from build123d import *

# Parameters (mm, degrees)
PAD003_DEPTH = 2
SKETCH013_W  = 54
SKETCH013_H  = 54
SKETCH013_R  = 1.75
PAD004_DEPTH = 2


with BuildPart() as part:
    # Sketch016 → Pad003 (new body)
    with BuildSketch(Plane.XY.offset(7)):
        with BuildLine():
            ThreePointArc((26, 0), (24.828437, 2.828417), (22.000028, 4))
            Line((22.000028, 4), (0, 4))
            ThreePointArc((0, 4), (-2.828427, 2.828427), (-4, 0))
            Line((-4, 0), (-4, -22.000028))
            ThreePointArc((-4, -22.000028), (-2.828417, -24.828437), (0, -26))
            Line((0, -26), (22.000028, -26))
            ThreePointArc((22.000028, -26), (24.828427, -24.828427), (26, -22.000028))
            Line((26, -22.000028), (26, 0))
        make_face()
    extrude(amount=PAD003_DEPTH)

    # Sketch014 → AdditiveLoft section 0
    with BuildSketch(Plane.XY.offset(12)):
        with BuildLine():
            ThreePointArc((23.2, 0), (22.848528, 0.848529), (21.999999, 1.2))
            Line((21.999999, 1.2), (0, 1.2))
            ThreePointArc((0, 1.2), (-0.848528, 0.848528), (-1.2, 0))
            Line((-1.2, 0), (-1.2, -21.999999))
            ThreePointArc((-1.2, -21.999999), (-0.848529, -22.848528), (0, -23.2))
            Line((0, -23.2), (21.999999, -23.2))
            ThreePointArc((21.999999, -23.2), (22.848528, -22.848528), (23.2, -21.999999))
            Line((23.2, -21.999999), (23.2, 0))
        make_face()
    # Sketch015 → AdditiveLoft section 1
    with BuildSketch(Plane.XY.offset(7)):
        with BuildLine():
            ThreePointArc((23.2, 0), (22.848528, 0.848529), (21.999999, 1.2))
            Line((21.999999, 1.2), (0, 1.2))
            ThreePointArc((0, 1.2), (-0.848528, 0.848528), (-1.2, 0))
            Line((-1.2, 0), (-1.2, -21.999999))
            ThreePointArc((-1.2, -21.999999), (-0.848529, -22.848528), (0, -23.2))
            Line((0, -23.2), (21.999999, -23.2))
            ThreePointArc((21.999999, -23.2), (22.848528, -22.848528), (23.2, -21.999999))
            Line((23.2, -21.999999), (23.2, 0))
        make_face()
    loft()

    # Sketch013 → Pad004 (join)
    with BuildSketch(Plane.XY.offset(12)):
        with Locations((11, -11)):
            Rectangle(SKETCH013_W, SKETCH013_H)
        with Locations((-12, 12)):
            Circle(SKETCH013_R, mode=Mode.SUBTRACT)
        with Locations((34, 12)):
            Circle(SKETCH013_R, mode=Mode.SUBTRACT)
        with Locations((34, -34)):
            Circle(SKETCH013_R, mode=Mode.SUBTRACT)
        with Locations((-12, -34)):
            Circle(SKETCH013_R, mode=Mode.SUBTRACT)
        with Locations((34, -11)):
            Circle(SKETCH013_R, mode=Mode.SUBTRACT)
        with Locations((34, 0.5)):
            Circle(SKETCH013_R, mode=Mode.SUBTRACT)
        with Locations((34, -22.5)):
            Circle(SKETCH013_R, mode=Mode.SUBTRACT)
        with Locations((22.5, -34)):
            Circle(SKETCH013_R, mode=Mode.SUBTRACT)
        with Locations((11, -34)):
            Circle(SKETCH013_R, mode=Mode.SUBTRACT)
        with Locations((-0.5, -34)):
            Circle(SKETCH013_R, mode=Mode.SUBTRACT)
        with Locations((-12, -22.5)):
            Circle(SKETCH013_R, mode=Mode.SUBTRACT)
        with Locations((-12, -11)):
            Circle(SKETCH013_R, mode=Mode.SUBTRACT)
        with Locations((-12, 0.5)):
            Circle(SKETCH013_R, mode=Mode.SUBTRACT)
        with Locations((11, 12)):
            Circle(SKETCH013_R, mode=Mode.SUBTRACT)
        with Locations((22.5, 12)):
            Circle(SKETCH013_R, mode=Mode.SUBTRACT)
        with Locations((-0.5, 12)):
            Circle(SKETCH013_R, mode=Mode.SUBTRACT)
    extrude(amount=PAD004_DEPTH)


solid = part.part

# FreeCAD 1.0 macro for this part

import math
import FreeCAD as App
import Part
import Sketcher

doc = App.newDocument("Part")
body = doc.addObject("PartDesign::Body", "Body")

# Sketch on XY plane
sketch1 = body.newObject("Sketcher::SketchObject", "Sketch")
sketch1.AttachmentSupport = (doc.getObject("XY_Plane"), [""])
sketch1.MapMode = "FlatFace"
sketch1.AttachmentOffset = App.Placement(App.Vector(0, 0, 7), App.Rotation())
sketch1.addGeometry(Part.ArcOfCircle(Part.Circle(App.Vector(22, 0, 0), App.Vector(0, 0, 1), 4), math.radians(0.000006), math.radians(89.999593)), False)
sketch1.addGeometry(Part.LineSegment(App.Vector(22.000028, 4, 0), App.Vector(0, 4, 0)), False)
sketch1.addGeometry(Part.ArcOfCircle(Part.Circle(App.Vector(0, 0, 0), App.Vector(0, 0, 1), 4), math.radians(90.000006), math.radians(179.999994)), False)
sketch1.addGeometry(Part.LineSegment(App.Vector(-4, 0, 0), App.Vector(-4, -22.000028, 0)), False)
sketch1.addGeometry(Part.ArcOfCircle(Part.Circle(App.Vector(0, -22, 0), App.Vector(0, 0, 1), 4), math.radians(-179.999593), math.radians(-90.000006)), False)
sketch1.addGeometry(Part.LineSegment(App.Vector(0, -26, 0), App.Vector(22.000028, -26, 0)), False)
sketch1.addGeometry(Part.ArcOfCircle(Part.Circle(App.Vector(22, -22, 0), App.Vector(0, 0, 1), 4), math.radians(-89.999593), math.radians(-0.000407)), False)
sketch1.addGeometry(Part.LineSegment(App.Vector(26, -22.000028, 0), App.Vector(26, 0, 0)), False)
sketch1.addConstraint(Sketcher.Constraint("Coincident", 0, 2, 1, 1))
sketch1.addConstraint(Sketcher.Constraint("Tangent", 1, 2, 2, 1))
sketch1.addConstraint(Sketcher.Constraint("Tangent", 2, 2, 3, 1))
sketch1.addConstraint(Sketcher.Constraint("Coincident", 3, 2, 4, 1))
sketch1.addConstraint(Sketcher.Constraint("Tangent", 4, 2, 5, 1))
sketch1.addConstraint(Sketcher.Constraint("Coincident", 5, 2, 6, 1))
sketch1.addConstraint(Sketcher.Constraint("Coincident", 6, 2, 7, 1))
sketch1.addConstraint(Sketcher.Constraint("Tangent", 7, 2, 0, 1))
sketch1.addConstraint(Sketcher.Constraint("Horizontal", 1))
sketch1.addConstraint(Sketcher.Constraint("Vertical", 3))
sketch1.addConstraint(Sketcher.Constraint("Horizontal", 5))
sketch1.addConstraint(Sketcher.Constraint("Vertical", 7))
sketch1.addConstraint(Sketcher.Constraint("Coincident", 2, 3, -1, 1))
sketch1.addConstraint(Sketcher.Constraint("Equal", 0, 2))
sketch1.addConstraint(Sketcher.Constraint("Equal", 2, 4))
sketch1.addConstraint(Sketcher.Constraint("Equal", 4, 6))
sketch1.addConstraint(Sketcher.Constraint("Horizontal", 3, 2, 6, 2))
sketch1.addConstraint(Sketcher.Constraint("Vertical", 0, 2, 5, 2))
sketch1.addConstraint(Sketcher.Constraint("Equal", 5, 3))
sketch1.addConstraint(Sketcher.Constraint("Radius", 0, 4.0))
sketch1.addConstraint(Sketcher.Constraint("DistanceX", -1, 1, 0, 3, 22.0))
sketch1.addConstraint(Sketcher.Constraint("DistanceY", 4, 3, -1, 1, 22.0))
sketch1.addConstraint(Sketcher.Constraint("DistanceX", 1, 2, 1, 1, 22.000028))
pad1 = body.newObject("PartDesign::Pad", "Pad")
pad1.Profile = sketch1
pad1.Length = 2

# Sketch on XY plane
sketch2 = body.newObject("Sketcher::SketchObject", "Sketch001")
sketch2.AttachmentSupport = (doc.getObject("XY_Plane"), [""])
sketch2.MapMode = "FlatFace"
sketch2.AttachmentOffset = App.Placement(App.Vector(0, 0, 12), App.Rotation())
sketch2.addGeometry(Part.ArcOfCircle(Part.Circle(App.Vector(22.000001, 0.000001, 0), App.Vector(0, 0, 1), 1.199999), math.radians(-0.000059), math.radians(90.000107)), False)
sketch2.addGeometry(Part.LineSegment(App.Vector(21.999999, 1.2, 0), App.Vector(0, 1.2, 0)), False)
sketch2.addGeometry(Part.ArcOfCircle(Part.Circle(App.Vector(0, 0, 0), App.Vector(0, 0, 1), 1.2), math.radians(90.000022), math.radians(179.999978)), False)
sketch2.addGeometry(Part.LineSegment(App.Vector(-1.2, 0, 0), App.Vector(-1.2, -21.999999, 0)), False)
sketch2.addGeometry(Part.ArcOfCircle(Part.Circle(App.Vector(-0.000001, -22.000001, 0), App.Vector(0, 0, 1), 1.199999), math.radians(179.999893), math.radians(270.000059)), False)
sketch2.addGeometry(Part.LineSegment(App.Vector(0, -23.2, 0), App.Vector(21.999999, -23.2, 0)), False)
sketch2.addGeometry(Part.ArcOfCircle(Part.Circle(App.Vector(22, -22, 0), App.Vector(0, 0, 1), 1.2), math.radians(-90.000025), math.radians(0.000025)), False)
sketch2.addGeometry(Part.LineSegment(App.Vector(23.2, -21.999999, 0), App.Vector(23.2, 0, 0)), False)
sketch2.addConstraint(Sketcher.Constraint("Tangent", 0, 2, 1, 1))
sketch2.addConstraint(Sketcher.Constraint("Tangent", 1, 2, 2, 1))
sketch2.addConstraint(Sketcher.Constraint("Tangent", 2, 2, 3, 1))
sketch2.addConstraint(Sketcher.Constraint("Tangent", 3, 2, 4, 1))
sketch2.addConstraint(Sketcher.Constraint("Tangent", 4, 2, 5, 1))
sketch2.addConstraint(Sketcher.Constraint("Tangent", 5, 2, 6, 1))
sketch2.addConstraint(Sketcher.Constraint("Tangent", 6, 2, 7, 1))
sketch2.addConstraint(Sketcher.Constraint("Tangent", 7, 2, 0, 1))
sketch2.addConstraint(Sketcher.Constraint("Horizontal", 1))
sketch2.addConstraint(Sketcher.Constraint("Vertical", 3))
sketch2.addConstraint(Sketcher.Constraint("Horizontal", 5))
sketch2.addConstraint(Sketcher.Constraint("Vertical", 7))
sketch2.addConstraint(Sketcher.Constraint("Coincident", 2, 3, -1, 1))
sketch2.addConstraint(Sketcher.Constraint("Equal", 0, 2))
sketch2.addConstraint(Sketcher.Constraint("Equal", 2, 4))
sketch2.addConstraint(Sketcher.Constraint("Equal", 4, 6))
sketch2.addConstraint(Sketcher.Constraint("Equal", 5, 3))
sketch2.addConstraint(Sketcher.Constraint("Radius", 0, 1.199999))
sketch2.addConstraint(Sketcher.Constraint("DistanceX", 1, 2, 1, 1, 21.999999))

# Sketch on XY plane
sketch3 = body.newObject("Sketcher::SketchObject", "Sketch002")
sketch3.AttachmentSupport = (doc.getObject("XY_Plane"), [""])
sketch3.MapMode = "FlatFace"
sketch3.AttachmentOffset = App.Placement(App.Vector(0, 0, 7), App.Rotation())
sketch3.addGeometry(Part.ArcOfCircle(Part.Circle(App.Vector(22.000001, 0.000001, 0), App.Vector(0, 0, 1), 1.199999), math.radians(-0.000059), math.radians(90.000107)), False)
sketch3.addGeometry(Part.LineSegment(App.Vector(21.999999, 1.2, 0), App.Vector(0, 1.2, 0)), False)
sketch3.addGeometry(Part.ArcOfCircle(Part.Circle(App.Vector(0, 0, 0), App.Vector(0, 0, 1), 1.2), math.radians(90.000022), math.radians(179.999978)), False)
sketch3.addGeometry(Part.LineSegment(App.Vector(-1.2, 0, 0), App.Vector(-1.2, -21.999999, 0)), False)
sketch3.addGeometry(Part.ArcOfCircle(Part.Circle(App.Vector(-0.000001, -22.000001, 0), App.Vector(0, 0, 1), 1.199999), math.radians(179.999893), math.radians(270.000059)), False)
sketch3.addGeometry(Part.LineSegment(App.Vector(0, -23.2, 0), App.Vector(21.999999, -23.2, 0)), False)
sketch3.addGeometry(Part.ArcOfCircle(Part.Circle(App.Vector(22, -22, 0), App.Vector(0, 0, 1), 1.2), math.radians(-90.000025), math.radians(0.000025)), False)
sketch3.addGeometry(Part.LineSegment(App.Vector(23.2, -21.999999, 0), App.Vector(23.2, 0, 0)), False)
sketch3.addConstraint(Sketcher.Constraint("Tangent", 0, 2, 1, 1))
sketch3.addConstraint(Sketcher.Constraint("Tangent", 1, 2, 2, 1))
sketch3.addConstraint(Sketcher.Constraint("Tangent", 2, 2, 3, 1))
sketch3.addConstraint(Sketcher.Constraint("Tangent", 3, 2, 4, 1))
sketch3.addConstraint(Sketcher.Constraint("Tangent", 4, 2, 5, 1))
sketch3.addConstraint(Sketcher.Constraint("Tangent", 5, 2, 6, 1))
sketch3.addConstraint(Sketcher.Constraint("Tangent", 6, 2, 7, 1))
sketch3.addConstraint(Sketcher.Constraint("Tangent", 7, 2, 0, 1))
sketch3.addConstraint(Sketcher.Constraint("Horizontal", 1))
sketch3.addConstraint(Sketcher.Constraint("Vertical", 3))
sketch3.addConstraint(Sketcher.Constraint("Horizontal", 5))
sketch3.addConstraint(Sketcher.Constraint("Vertical", 7))
sketch3.addConstraint(Sketcher.Constraint("Coincident", 2, 3, -1, 1))
sketch3.addConstraint(Sketcher.Constraint("Equal", 0, 2))
sketch3.addConstraint(Sketcher.Constraint("Equal", 2, 4))
sketch3.addConstraint(Sketcher.Constraint("Equal", 4, 6))
sketch3.addConstraint(Sketcher.Constraint("Equal", 5, 3))
sketch3.addConstraint(Sketcher.Constraint("Radius", 0, 1.199999))
sketch3.addConstraint(Sketcher.Constraint("DistanceX", 1, 2, 1, 1, 21.999999))

additiveloft = body.newObject("PartDesign::AdditiveLoft", "AdditiveLoft")
additiveloft.Profile = sketch2
additiveloft.Sections = [sketch3]

# Sketch on XY plane
sketch4 = body.newObject("Sketcher::SketchObject", "Sketch003")
sketch4.AttachmentSupport = (doc.getObject("XY_Plane"), [""])
sketch4.MapMode = "FlatFace"
sketch4.AttachmentOffset = App.Placement(App.Vector(0, 0, 12), App.Rotation())
sketch4.addGeometry(Part.LineSegment(App.Vector(-16, 16, 0), App.Vector(-16, -38, 0)), False)
sketch4.addGeometry(Part.LineSegment(App.Vector(-16, -38, 0), App.Vector(38, -38, 0)), False)
sketch4.addGeometry(Part.LineSegment(App.Vector(38, -38, 0), App.Vector(38, 16, 0)), False)
sketch4.addGeometry(Part.LineSegment(App.Vector(38, 16, 0), App.Vector(-16, 16, 0)), False)
sketch4.addGeometry(Part.Circle(App.Vector(-12, -34, 0), App.Vector(0, 0, 1), 1.75), False)
sketch4.addGeometry(Part.Circle(App.Vector(-0.5, -34, 0), App.Vector(0, 0, 1), 1.75), False)
sketch4.addGeometry(Part.Circle(App.Vector(-12, -22.5, 0), App.Vector(0, 0, 1), 1.75), False)
sketch4.addGeometry(Part.Circle(App.Vector(11, -34, 0), App.Vector(0, 0, 1), 1.75), False)
sketch4.addGeometry(Part.Circle(App.Vector(22.5, -34, 0), App.Vector(0, 0, 1), 1.75), False)
sketch4.addGeometry(Part.Circle(App.Vector(34, -34, 0), App.Vector(0, 0, 1), 1.75), False)
sketch4.addGeometry(Part.Circle(App.Vector(34, -22.5, 0), App.Vector(0, 0, 1), 1.75), False)
sketch4.addGeometry(Part.Circle(App.Vector(-12, -11, 0), App.Vector(0, 0, 1), 1.75), False)
sketch4.addGeometry(Part.Circle(App.Vector(-12, 0.5, 0), App.Vector(0, 0, 1), 1.75), False)
sketch4.addGeometry(Part.Circle(App.Vector(-12, 12, 0), App.Vector(0, 0, 1), 1.75), False)
sketch4.addGeometry(Part.Circle(App.Vector(-0.5, 12, 0), App.Vector(0, 0, 1), 1.75), False)
sketch4.addGeometry(Part.Circle(App.Vector(34, -11, 0), App.Vector(0, 0, 1), 1.75), False)
sketch4.addGeometry(Part.Circle(App.Vector(34, 0.5, 0), App.Vector(0, 0, 1), 1.75), False)
sketch4.addGeometry(Part.Circle(App.Vector(11, 12, 0), App.Vector(0, 0, 1), 1.75), False)
sketch4.addGeometry(Part.Circle(App.Vector(22.5, 12, 0), App.Vector(0, 0, 1), 1.75), False)
sketch4.addGeometry(Part.Circle(App.Vector(34, 12, 0), App.Vector(0, 0, 1), 1.75), False)
sketch4.addConstraint(Sketcher.Constraint("Coincident", 0, 2, 1, 1))
sketch4.addConstraint(Sketcher.Constraint("Coincident", 1, 2, 2, 1))
sketch4.addConstraint(Sketcher.Constraint("Coincident", 2, 2, 3, 1))
sketch4.addConstraint(Sketcher.Constraint("Coincident", 3, 2, 0, 1))
sketch4.addConstraint(Sketcher.Constraint("Vertical", 0))
sketch4.addConstraint(Sketcher.Constraint("Horizontal", 1))
sketch4.addConstraint(Sketcher.Constraint("Vertical", 2))
sketch4.addConstraint(Sketcher.Constraint("Horizontal", 3))
sketch4.addConstraint(Sketcher.Constraint("Equal", 4, 5))
sketch4.addConstraint(Sketcher.Constraint("Equal", 5, 6))
sketch4.addConstraint(Sketcher.Constraint("Equal", 6, 7))
sketch4.addConstraint(Sketcher.Constraint("Equal", 7, 8))
sketch4.addConstraint(Sketcher.Constraint("Equal", 8, 9))
sketch4.addConstraint(Sketcher.Constraint("Equal", 9, 10))
sketch4.addConstraint(Sketcher.Constraint("Equal", 10, 11))
sketch4.addConstraint(Sketcher.Constraint("Equal", 11, 12))
sketch4.addConstraint(Sketcher.Constraint("Equal", 12, 13))
sketch4.addConstraint(Sketcher.Constraint("Equal", 13, 14))
sketch4.addConstraint(Sketcher.Constraint("Equal", 14, 15))
sketch4.addConstraint(Sketcher.Constraint("Equal", 15, 16))
sketch4.addConstraint(Sketcher.Constraint("Equal", 16, 17))
sketch4.addConstraint(Sketcher.Constraint("Equal", 17, 18))
sketch4.addConstraint(Sketcher.Constraint("Equal", 18, 19))
sketch4.addConstraint(Sketcher.Constraint("Horizontal", 4, 3, 5, 3))
sketch4.addConstraint(Sketcher.Constraint("Horizontal", 5, 3, 7, 3))
sketch4.addConstraint(Sketcher.Constraint("Horizontal", 7, 3, 8, 3))
sketch4.addConstraint(Sketcher.Constraint("Horizontal", 8, 3, 9, 3))
sketch4.addConstraint(Sketcher.Constraint("Horizontal", 6, 3, 10, 3))
sketch4.addConstraint(Sketcher.Constraint("Horizontal", 13, 3, 14, 3))
sketch4.addConstraint(Sketcher.Constraint("Horizontal", 11, 3, 15, 3))
sketch4.addConstraint(Sketcher.Constraint("Horizontal", 12, 3, 16, 3))
sketch4.addConstraint(Sketcher.Constraint("Horizontal", 14, 3, 17, 3))
sketch4.addConstraint(Sketcher.Constraint("Horizontal", 17, 3, 18, 3))
sketch4.addConstraint(Sketcher.Constraint("Horizontal", 18, 3, 19, 3))
sketch4.addConstraint(Sketcher.Constraint("Vertical", 4, 3, 6, 3))
sketch4.addConstraint(Sketcher.Constraint("Vertical", 9, 3, 10, 3))
sketch4.addConstraint(Sketcher.Constraint("Vertical", 6, 3, 11, 3))
sketch4.addConstraint(Sketcher.Constraint("Vertical", 11, 3, 12, 3))
sketch4.addConstraint(Sketcher.Constraint("Vertical", 12, 3, 13, 3))
sketch4.addConstraint(Sketcher.Constraint("Vertical", 5, 3, 14, 3))
sketch4.addConstraint(Sketcher.Constraint("Vertical", 10, 3, 15, 3))
sketch4.addConstraint(Sketcher.Constraint("Vertical", 15, 3, 16, 3))
sketch4.addConstraint(Sketcher.Constraint("Vertical", 7, 3, 17, 3))
sketch4.addConstraint(Sketcher.Constraint("Vertical", 8, 3, 18, 3))
sketch4.addConstraint(Sketcher.Constraint("Vertical", 16, 3, 19, 3))
sketch4.addConstraint(Sketcher.Constraint("Equal", 3, 0))
sketch4.addConstraint(Sketcher.Constraint("Diameter", 4, 3.5))
sketch4.addConstraint(Sketcher.Constraint("DistanceX", 1, 1, 1, 2, 54.0))
sketch4.addConstraint(Sketcher.Constraint("DistanceX", 4, 3, -1, 1, 12.0))
sketch4.addConstraint(Sketcher.Constraint("DistanceY", 4, 3, -1, 1, 34.0))
sketch4.addConstraint(Sketcher.Constraint("DistanceX", -1, 1, 7, 3, 11.0))
sketch4.addConstraint(Sketcher.Constraint("DistanceX", -1, 1, 9, 3, 34.0))
sketch4.addConstraint(Sketcher.Constraint("DistanceY", 11, 3, -1, 1, 11.0))
sketch4.addConstraint(Sketcher.Constraint("DistanceY", -1, 1, 13, 3, 12.0))
sketch4.addConstraint(Sketcher.Constraint("DistanceX", 0, 2, -1, 1, 16.0))
sketch4.addConstraint(Sketcher.Constraint("DistanceY", 0, 2, -1, 1, 38.0))
sketch4.addConstraint(Sketcher.Constraint("DistanceX", 5, 3, 8, 3, 23.0))
sketch4.addConstraint(Sketcher.Constraint("DistanceY", 6, 3, 12, 3, 23.0))
sketch4.addConstraint(Sketcher.Constraint("DistanceX", 5, 3, -1, 1, 0.5))
sketch4.addConstraint(Sketcher.Constraint("DistanceY", 6, 3, -1, 1, 22.5))
pad2 = body.newObject("PartDesign::Pad", "Pad001")
pad2.Profile = sketch4
pad2.Length = 2

doc.recompute()
